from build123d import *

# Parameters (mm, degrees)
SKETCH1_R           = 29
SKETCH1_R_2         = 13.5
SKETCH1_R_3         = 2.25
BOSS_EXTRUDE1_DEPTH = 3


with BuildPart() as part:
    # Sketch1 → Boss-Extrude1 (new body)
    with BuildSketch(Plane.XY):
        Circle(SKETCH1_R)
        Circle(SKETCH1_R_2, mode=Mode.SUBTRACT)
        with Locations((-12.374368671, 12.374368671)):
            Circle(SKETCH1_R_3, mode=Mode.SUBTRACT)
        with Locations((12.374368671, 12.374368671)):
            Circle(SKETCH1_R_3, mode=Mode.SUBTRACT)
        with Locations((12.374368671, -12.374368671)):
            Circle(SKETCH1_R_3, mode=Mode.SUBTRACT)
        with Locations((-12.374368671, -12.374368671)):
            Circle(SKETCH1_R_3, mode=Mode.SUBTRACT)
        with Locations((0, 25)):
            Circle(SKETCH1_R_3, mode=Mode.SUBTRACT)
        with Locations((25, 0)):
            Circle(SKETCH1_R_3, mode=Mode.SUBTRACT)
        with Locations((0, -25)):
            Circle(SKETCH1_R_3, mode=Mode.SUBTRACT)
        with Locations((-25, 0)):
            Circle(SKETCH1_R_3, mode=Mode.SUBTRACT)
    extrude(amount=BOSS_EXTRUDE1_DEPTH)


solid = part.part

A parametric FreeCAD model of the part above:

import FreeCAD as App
import Part
import Sketcher
from FreeCAD import Vector

doc = App.newDocument("Part")
body = doc.addObject("PartDesign::Body", "Body")

# Sketch on XY plane
sketch1 = doc.addObject("Sketcher::SketchObject", "Sketch")
body.addObject(sketch1)
sketch1.AttachmentSupport = (doc.XY_Plane, [""])
sketch1.MapMode = "FlatFace"
sketch1.addGeometry(Part.Circle(Vector(0, 0, 0), Vector(0, 0, 1), 29), False)
sketch1.addGeometry(Part.Circle(Vector(-12.4, -12.4, 0), Vector(0, 0, 1), 2.2), False)
sketch1.addGeometry(Part.Circle(Vector(0, -25, 0), Vector(0, 0, 1), 2.2), False)
sketch1.addGeometry(Part.Circle(Vector(12.4, -12.4, 0), Vector(0, 0, 1), 2.2), False)
sketch1.addGeometry(Part.Circle(Vector(-25, 0, 0), Vector(0, 0, 1), 2.2), False)
sketch1.addGeometry(Part.Circle(Vector(-12.4, 12.4, 0), Vector(0, 0, 1), 2.2), False)
sketch1.addGeometry(Part.Circle(Vector(0, 0, 0), Vector(0, 0, 1), 13.5), False)
sketch1.addGeometry(Part.Circle(Vector(12.4, 12.4, 0), Vector(0, 0, 1), 2.2), False)
sketch1.addGeometry(Part.Circle(Vector(25, 0, 0), Vector(0, 0, 1), 2.2), False)
sketch1.addGeometry(Part.Circle(Vector(0, 25, 0), Vector(0, 0, 1), 2.2), False)
sketch1.addConstraint(Sketcher.Constraint("Coincident", 0, 3, -1, 1))
sketch1.addConstraint(Sketcher.Constraint("Coincident", 6, 3, -1, 1))
sketch1.addConstraint(Sketcher.Constraint("Equal", 1, 2))
sketch1.addConstraint(Sketcher.Constraint("Equal", 2, 3))
sketch1.addConstraint(Sketcher.Constraint("Equal", 3, 4))
sketch1.addConstraint(Sketcher.Constraint("Equal", 4, 5))
sketch1.addConstraint(Sketcher.Constraint("Equal", 5, 7))
sketch1.addConstraint(Sketcher.Constraint("Equal", 7, 8))
sketch1.addConstraint(Sketcher.Constraint("Equal", 8, 9))
sketch1.addConstraint(Sketcher.Constraint("Symmetric", 3, 3, 5, 3, -1, 1))
sketch1.addConstraint(Sketcher.Constraint("Symmetric", 1, 3, 7, 3, -1, 1))
sketch1.addConstraint(Sketcher.Constraint("Symmetric", 4, 3, 8, 3, -1, 1))
sketch1.addConstraint(Sketcher.Constraint("Symmetric", 2, 3, 9, 3, -1, 1))
sketch1.addConstraint(Sketcher.Constraint("Symmetric", 1, 3, 3, 3, -2))
sketch1.addConstraint(Sketcher.Constraint("PointOnObject", 2, 3, -2))
sketch1.addConstraint(Sketcher.Constraint("PointOnObject", 4, 3, -1))
sketch1.addConstraint(Sketcher.Constraint("Diameter", 0, 58.0))
sketch1.addConstraint(Sketcher.Constraint("Diameter", 6, 27.0))
sketch1.addConstraint(Sketcher.Constraint("Diameter", 1, 4.5))
sketch1.addConstraint(Sketcher.Constraint("DistanceY", 2, 3, -1, 1, 25.0))
sketch1.addConstraint(Sketcher.Constraint("DistanceX", 4, 3, -1, 1, 25.0))
sketch1.addConstraint(Sketcher.Constraint("DistanceX", 1, 3, -1, 1, 12.374369))
sketch1.addConstraint(Sketcher.Constraint("DistanceY", 1, 3, -1, 1, 12.374369))
pad1 = doc.addObject("PartDesign::Pad", "Pad")
body.addObject(pad1)
pad1.Profile = sketch1
pad1.Length = 3

doc.recompute()
